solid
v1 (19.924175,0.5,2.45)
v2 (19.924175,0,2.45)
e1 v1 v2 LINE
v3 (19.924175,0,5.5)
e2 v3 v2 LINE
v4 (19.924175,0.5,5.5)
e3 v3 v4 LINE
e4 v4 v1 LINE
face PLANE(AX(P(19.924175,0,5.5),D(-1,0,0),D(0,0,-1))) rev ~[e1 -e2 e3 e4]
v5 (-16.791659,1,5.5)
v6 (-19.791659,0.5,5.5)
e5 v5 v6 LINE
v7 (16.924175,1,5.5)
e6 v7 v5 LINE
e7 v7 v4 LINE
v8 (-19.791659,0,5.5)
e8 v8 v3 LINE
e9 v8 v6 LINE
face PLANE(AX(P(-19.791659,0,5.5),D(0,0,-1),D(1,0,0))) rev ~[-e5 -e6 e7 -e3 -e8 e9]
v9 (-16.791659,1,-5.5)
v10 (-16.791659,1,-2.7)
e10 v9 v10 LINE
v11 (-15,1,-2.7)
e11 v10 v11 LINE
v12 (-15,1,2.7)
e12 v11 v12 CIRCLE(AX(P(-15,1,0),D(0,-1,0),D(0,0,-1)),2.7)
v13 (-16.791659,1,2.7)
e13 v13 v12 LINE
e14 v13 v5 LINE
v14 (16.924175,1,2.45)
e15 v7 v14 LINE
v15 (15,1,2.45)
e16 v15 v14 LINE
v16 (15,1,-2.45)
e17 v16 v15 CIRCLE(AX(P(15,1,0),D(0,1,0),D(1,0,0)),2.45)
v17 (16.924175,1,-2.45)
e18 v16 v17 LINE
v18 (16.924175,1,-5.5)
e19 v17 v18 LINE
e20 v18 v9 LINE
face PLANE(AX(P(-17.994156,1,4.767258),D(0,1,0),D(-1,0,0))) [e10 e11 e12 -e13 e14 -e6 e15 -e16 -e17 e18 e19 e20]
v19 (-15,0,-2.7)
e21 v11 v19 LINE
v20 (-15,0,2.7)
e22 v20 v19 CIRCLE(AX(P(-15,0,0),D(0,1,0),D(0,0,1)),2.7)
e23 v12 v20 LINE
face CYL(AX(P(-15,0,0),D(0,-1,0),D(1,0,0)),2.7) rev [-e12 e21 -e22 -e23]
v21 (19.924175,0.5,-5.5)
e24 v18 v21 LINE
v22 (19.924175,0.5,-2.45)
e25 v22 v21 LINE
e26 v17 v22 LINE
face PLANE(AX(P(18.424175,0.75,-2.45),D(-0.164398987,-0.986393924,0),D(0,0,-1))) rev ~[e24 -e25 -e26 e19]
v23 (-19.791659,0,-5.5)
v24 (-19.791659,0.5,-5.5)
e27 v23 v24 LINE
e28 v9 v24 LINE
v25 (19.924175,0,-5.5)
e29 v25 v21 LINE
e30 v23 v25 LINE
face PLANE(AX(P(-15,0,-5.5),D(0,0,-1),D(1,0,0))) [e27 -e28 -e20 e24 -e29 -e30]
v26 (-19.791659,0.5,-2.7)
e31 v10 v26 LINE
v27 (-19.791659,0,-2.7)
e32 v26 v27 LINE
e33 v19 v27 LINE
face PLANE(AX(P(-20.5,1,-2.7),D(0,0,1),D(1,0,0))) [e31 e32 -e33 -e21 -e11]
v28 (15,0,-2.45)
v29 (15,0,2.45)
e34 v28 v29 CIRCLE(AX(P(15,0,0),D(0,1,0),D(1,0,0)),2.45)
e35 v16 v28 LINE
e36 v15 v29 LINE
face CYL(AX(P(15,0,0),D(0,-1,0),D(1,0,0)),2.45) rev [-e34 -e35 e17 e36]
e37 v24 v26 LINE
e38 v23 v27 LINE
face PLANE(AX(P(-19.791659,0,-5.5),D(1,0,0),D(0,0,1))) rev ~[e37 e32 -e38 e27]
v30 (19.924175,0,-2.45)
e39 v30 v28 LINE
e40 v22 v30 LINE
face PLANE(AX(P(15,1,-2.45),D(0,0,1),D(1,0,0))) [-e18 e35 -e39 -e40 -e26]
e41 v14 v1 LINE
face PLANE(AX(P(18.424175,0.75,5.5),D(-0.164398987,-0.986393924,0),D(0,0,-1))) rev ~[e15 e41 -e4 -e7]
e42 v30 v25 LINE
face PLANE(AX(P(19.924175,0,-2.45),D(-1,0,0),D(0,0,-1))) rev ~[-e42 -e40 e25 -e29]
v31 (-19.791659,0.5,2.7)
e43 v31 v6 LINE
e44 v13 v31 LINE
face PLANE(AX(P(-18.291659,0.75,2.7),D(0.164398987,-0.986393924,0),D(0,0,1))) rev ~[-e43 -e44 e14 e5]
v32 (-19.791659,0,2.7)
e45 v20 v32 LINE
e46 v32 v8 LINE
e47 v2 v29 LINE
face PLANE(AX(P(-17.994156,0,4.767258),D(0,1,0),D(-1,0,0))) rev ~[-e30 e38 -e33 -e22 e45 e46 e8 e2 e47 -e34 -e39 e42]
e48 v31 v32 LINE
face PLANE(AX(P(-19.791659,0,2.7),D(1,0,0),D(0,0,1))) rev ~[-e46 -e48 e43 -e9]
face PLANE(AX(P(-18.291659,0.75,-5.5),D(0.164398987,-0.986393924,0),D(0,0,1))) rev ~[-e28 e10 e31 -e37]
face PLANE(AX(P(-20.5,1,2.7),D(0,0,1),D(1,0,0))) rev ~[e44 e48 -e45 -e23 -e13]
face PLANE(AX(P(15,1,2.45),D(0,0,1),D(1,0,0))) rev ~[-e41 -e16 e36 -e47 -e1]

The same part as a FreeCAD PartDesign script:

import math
import FreeCAD as App
import Part
import Sketcher

V = App.Vector
Q = App.Units.Quantity


def edges_at(feature, points):
    """Names of the edges that pass closest to the given points."""
    edges = feature.Shape.Edges
    near = lambda p: min(range(len(edges)), key=lambda i: edges[i].distToShape(Part.Vertex(*p))[0])
    return sorted({f"Edge{near(p) + 1}" for p in points})

doc = App.newDocument("Part")
body = doc.addObject("PartDesign::Body", "Body")

# Sketch on XZ plane
sketch1 = doc.addObject("Sketcher::SketchObject", "Sketch")
body.addObject(sketch1)
sketch1.AttachmentSupport = (doc.XZ_Plane, [""])
sketch1.MapMode = "FlatFace"
sketch1.addGeometry([
    Part.LineSegment(V(15, -5.5, 0), V(-15, -5.5, 0)),  # 0
    Part.ArcOfCircle(Part.Circle(V(-15, 0, 0), V(0, 0, 1), 5.5), math.radians(90), math.radians(270)),  # 1
    Part.LineSegment(V(-15, 5.5, 0), V(15, 5.5, 0)),  # 2
    Part.ArcOfCircle(Part.Circle(V(15, 0, 0), V(0, 0, 1), 5.5), math.radians(-90), math.radians(90)),  # 3
    Part.Circle(V(15, 0, 0), V(0, 0, 1), 2.45),  # 4
    Part.Circle(V(-15, 0, 0), V(0, 0, 1), 2.7),  # 5
], False)
sketch1.addConstraint([
    Sketcher.Constraint("Tangent", 0, 2, 1, 2),
    Sketcher.Constraint("Tangent", 1, 1, 2, 1),
    Sketcher.Constraint("Tangent", 2, 2, 3, 2),
    Sketcher.Constraint("Tangent", 3, 1, 0, 1),
    Sketcher.Constraint("Horizontal", 0),
    Sketcher.Constraint("Horizontal", 2),
    Sketcher.Constraint("Coincident", 4, 3, 3, 3),
    Sketcher.Constraint("Coincident", 5, 3, 1, 3),
    Sketcher.Constraint("Symmetric", 1, 3, 3, 3, -1, 1),
    Sketcher.Constraint("Diameter", 4, Q("4.9 mm")),
    Sketcher.Constraint("Diameter", 5, Q("5.4 mm")),
    Sketcher.Constraint("Radius", 1, Q("5.5 mm")),
    Sketcher.Constraint("DistanceX", 0, 2, 0, 1, Q("30 mm")),
])
pad1 = doc.addObject("PartDesign::Pad", "Pad")
body.addObject(pad1)
pad1.Profile = sketch1
pad1.Length = 1
pad1.Reversed = True

# Sketch on XZ plane
sketch2 = doc.addObject("Sketcher::SketchObject", "Sketch001")
body.addObject(sketch2)
sketch2.AttachmentSupport = (doc.XZ_Plane, [""])
sketch2.MapMode = "FlatFace"
sketch2.AttachmentOffset = App.Placement(V(0, 0, -1), App.Rotation())
sketch2.addGeometry([
    Part.LineSegment(V(-20.5, -2.7, 0), V(-20.5, 2.7, 0)),  # 0
    Part.LineSegment(V(-20.5, 2.7, 0), V(-15, 2.7, 0)),  # 1
    Part.LineSegment(V(-15, 2.7, 0), V(-15, -2.7, 0)),  # 2
    Part.LineSegment(V(-15, -2.7, 0), V(-20.5, -2.7, 0)),  # 3
    Part.LineSegment(V(15, -2.45, 0), V(15, 2.45, 0)),  # 4
    Part.LineSegment(V(15, 2.45, 0), V(20.5, 2.45, 0)),  # 5
    Part.LineSegment(V(20.5, 2.45, 0), V(20.5, -2.45, 0)),  # 6
    Part.LineSegment(V(20.5, -2.45, 0), V(15, -2.45, 0)),  # 7
], False)
sketch2.addConstraint([
    Sketcher.Constraint("Coincident", 0, 2, 1, 1),
    Sketcher.Constraint("Coincident", 1, 2, 2, 1),
    Sketcher.Constraint("Coincident", 2, 2, 3, 1),
    Sketcher.Constraint("Coincident", 3, 2, 0, 1),
    Sketcher.Constraint("Coincident", 4, 2, 5, 1),
    Sketcher.Constraint("Coincident", 5, 2, 6, 1),
    Sketcher.Constraint("Coincident", 6, 2, 7, 1),
    Sketcher.Constraint("Coincident", 7, 2, 4, 1),
    Sketcher.Constraint("Vertical", 0),
    Sketcher.Constraint("Horizontal", 1),
    Sketcher.Constraint("Vertical", 2),
    Sketcher.Constraint("Horizontal", 3),
    Sketcher.Constraint("Vertical", 4),
    Sketcher.Constraint("Horizontal", 5),
    Sketcher.Constraint("Vertical", 6),
    Sketcher.Constraint("Horizontal", 7),
    Sketcher.Constraint("Equal", 3, 5),
    Sketcher.Constraint("DistanceX", 1, 1, 1, 2, Q("5.5 mm")),
    Sketcher.Constraint("DistanceY", 0, 1, 0, 2, Q("5.4 mm")),
    Sketcher.Constraint("DistanceY", 4, 1, 4, 2, Q("4.9 mm")),
    Sketcher.Constraint("DistanceX", 1, 2, -1, 1, Q("15 mm")),
    Sketcher.Constraint("DistanceX", -1, 1, 4, 2, Q("15 mm")),
    Sketcher.Constraint("DistanceY", -1, 1, 0, 2, Q("2.7 mm")),
    Sketcher.Constraint("DistanceY", -1, 1, 4, 2, Q("2.45 mm")),
])
pocket1 = doc.addObject("PartDesign::Pocket", "Pocket")
body.addObject(pocket1)
pocket1.Profile = sketch2
pocket1.Type = "ThroughAll"
pocket1.Reversed = True

# Sketch on XZ plane
sketch3 = doc.addObject("Sketcher::SketchObject", "Sketch002")
body.addObject(sketch3)
sketch3.AttachmentSupport = (doc.XZ_Plane, [""])
sketch3.MapMode = "FlatFace"
sketch3.addGeometry([
    Part.LineSegment(V(-19.791659, 5.5, 0), V(-19.791659, 2.7, 0)),  # 0
    Part.ArcOfCircle(Part.Circle(V(-15, 0, 0), V(0, 0, 1), 5.5), math.radians(90), math.radians(150.599649)),  # 1
    Part.LineSegment(V(-15, 5.5, 0), V(-19.791659, 5.5, 0)),  # 2
    Part.LineSegment(V(19.924175, 5.5, 0), V(15, 5.5, 0)),  # 3
    Part.ArcOfCircle(Part.Circle(V(15, 0, 0), V(0, 0, 1), 5.5), math.radians(26.452424), math.radians(90)),  # 4
    Part.LineSegment(V(19.924175, 2.45, 0), V(19.924175, 5.5, 0)),  # 5
    Part.LineSegment(V(19.924175, -5.5, 0), V(19.924175, -2.45, 0)),  # 6
    Part.ArcOfCircle(Part.Circle(V(15, 0, 0), V(0, 0, 1), 5.5), math.radians(-90), math.radians(-26.452424)),  # 7
    Part.LineSegment(V(15, -5.5, 0), V(19.924175, -5.5, 0)),  # 8
    Part.LineSegment(V(-19.791659, -5.5, 0), V(-15, -5.5, 0)),  # 9
    Part.ArcOfCircle(Part.Circle(V(-15, 0, 0), V(0, 0, 1), 5.5), math.radians(-150.599649), math.radians(-90)),  # 10
    Part.LineSegment(V(-19.791659, -2.7, 0), V(-19.791659, -5.5, 0)),  # 11
], False)
sketch3.addConstraint([
    Sketcher.Constraint("Coincident", 0, 2, 1, 2),
    Sketcher.Constraint("Tangent", 1, 1, 2, 1),
    Sketcher.Constraint("Coincident", 2, 2, 0, 1),
    Sketcher.Constraint("Tangent", 3, 2, 4, 2),
    Sketcher.Constraint("Coincident", 4, 1, 5, 1),
    Sketcher.Constraint("Coincident", 5, 2, 3, 1),
    Sketcher.Constraint("Coincident", 6, 2, 7, 2),
    Sketcher.Constraint("Tangent", 7, 1, 8, 1),
    Sketcher.Constraint("Coincident", 8, 2, 6, 1),
    Sketcher.Constraint("Tangent", 9, 2, 10, 2),
    Sketcher.Constraint("Coincident", 10, 1, 11, 1),
    Sketcher.Constraint("Coincident", 11, 2, 9, 1),
    Sketcher.Constraint("Vertical", 0),
    Sketcher.Constraint("Horizontal", 2),
    Sketcher.Constraint("Horizontal", 3),
    Sketcher.Constraint("Vertical", 5),
    Sketcher.Constraint("Vertical", 6),
    Sketcher.Constraint("Horizontal", 8),
    Sketcher.Constraint("Horizontal", 9),
    Sketcher.Constraint("Vertical", 11),
    Sketcher.Constraint("Coincident", 7, 3, 4, 3),
    Sketcher.Constraint("Coincident", 10, 3, 1, 3),
    Sketcher.Constraint("Equal", 1, 4),
    Sketcher.Constraint("Equal", 4, 7),
    Sketcher.Constraint("Equal", 7, 10),
    Sketcher.Constraint("Symmetric", 1, 3, 4, 3, -1, 1),
    Sketcher.Constraint("Symmetric", 4, 1, 6, 2, -1),
    Sketcher.Constraint("Vertical", 2, 2, 10, 1),
    Sketcher.Constraint("Radius", 1, Q("5.5 mm")),
    Sketcher.Constraint("DistanceY", 0, 2, 0, 1, Q("2.8 mm")),
    Sketcher.Constraint("DistanceX", 1, 3, -1, 1, Q("15 mm")),
    Sketcher.Constraint("DistanceY", 5, 1, 5, 2, Q("3.05 mm")),
])
pad2 = doc.addObject("PartDesign::Pad", "Pad001")
body.addObject(pad2)
pad2.Profile = sketch3
pad2.Length = 1
pad2.Reversed = True
doc.recompute()

chamfer = doc.addObject("PartDesign::Chamfer", "Chamfer")
body.addObject(chamfer)
chamfer.Base = (pad2, edges_at(pad2, [
    (19.924, 1, -3.975),
    (-19.792, 1, 4.1),
    (-19.792, 1, -4.1),
    (19.924, 1, 3.975),
]))
chamfer.ChamferType = "Two distances"
chamfer.Size = 3
chamfer.Size2 = 0.5
chamfer.FlipDirection = True

doc.recompute()
